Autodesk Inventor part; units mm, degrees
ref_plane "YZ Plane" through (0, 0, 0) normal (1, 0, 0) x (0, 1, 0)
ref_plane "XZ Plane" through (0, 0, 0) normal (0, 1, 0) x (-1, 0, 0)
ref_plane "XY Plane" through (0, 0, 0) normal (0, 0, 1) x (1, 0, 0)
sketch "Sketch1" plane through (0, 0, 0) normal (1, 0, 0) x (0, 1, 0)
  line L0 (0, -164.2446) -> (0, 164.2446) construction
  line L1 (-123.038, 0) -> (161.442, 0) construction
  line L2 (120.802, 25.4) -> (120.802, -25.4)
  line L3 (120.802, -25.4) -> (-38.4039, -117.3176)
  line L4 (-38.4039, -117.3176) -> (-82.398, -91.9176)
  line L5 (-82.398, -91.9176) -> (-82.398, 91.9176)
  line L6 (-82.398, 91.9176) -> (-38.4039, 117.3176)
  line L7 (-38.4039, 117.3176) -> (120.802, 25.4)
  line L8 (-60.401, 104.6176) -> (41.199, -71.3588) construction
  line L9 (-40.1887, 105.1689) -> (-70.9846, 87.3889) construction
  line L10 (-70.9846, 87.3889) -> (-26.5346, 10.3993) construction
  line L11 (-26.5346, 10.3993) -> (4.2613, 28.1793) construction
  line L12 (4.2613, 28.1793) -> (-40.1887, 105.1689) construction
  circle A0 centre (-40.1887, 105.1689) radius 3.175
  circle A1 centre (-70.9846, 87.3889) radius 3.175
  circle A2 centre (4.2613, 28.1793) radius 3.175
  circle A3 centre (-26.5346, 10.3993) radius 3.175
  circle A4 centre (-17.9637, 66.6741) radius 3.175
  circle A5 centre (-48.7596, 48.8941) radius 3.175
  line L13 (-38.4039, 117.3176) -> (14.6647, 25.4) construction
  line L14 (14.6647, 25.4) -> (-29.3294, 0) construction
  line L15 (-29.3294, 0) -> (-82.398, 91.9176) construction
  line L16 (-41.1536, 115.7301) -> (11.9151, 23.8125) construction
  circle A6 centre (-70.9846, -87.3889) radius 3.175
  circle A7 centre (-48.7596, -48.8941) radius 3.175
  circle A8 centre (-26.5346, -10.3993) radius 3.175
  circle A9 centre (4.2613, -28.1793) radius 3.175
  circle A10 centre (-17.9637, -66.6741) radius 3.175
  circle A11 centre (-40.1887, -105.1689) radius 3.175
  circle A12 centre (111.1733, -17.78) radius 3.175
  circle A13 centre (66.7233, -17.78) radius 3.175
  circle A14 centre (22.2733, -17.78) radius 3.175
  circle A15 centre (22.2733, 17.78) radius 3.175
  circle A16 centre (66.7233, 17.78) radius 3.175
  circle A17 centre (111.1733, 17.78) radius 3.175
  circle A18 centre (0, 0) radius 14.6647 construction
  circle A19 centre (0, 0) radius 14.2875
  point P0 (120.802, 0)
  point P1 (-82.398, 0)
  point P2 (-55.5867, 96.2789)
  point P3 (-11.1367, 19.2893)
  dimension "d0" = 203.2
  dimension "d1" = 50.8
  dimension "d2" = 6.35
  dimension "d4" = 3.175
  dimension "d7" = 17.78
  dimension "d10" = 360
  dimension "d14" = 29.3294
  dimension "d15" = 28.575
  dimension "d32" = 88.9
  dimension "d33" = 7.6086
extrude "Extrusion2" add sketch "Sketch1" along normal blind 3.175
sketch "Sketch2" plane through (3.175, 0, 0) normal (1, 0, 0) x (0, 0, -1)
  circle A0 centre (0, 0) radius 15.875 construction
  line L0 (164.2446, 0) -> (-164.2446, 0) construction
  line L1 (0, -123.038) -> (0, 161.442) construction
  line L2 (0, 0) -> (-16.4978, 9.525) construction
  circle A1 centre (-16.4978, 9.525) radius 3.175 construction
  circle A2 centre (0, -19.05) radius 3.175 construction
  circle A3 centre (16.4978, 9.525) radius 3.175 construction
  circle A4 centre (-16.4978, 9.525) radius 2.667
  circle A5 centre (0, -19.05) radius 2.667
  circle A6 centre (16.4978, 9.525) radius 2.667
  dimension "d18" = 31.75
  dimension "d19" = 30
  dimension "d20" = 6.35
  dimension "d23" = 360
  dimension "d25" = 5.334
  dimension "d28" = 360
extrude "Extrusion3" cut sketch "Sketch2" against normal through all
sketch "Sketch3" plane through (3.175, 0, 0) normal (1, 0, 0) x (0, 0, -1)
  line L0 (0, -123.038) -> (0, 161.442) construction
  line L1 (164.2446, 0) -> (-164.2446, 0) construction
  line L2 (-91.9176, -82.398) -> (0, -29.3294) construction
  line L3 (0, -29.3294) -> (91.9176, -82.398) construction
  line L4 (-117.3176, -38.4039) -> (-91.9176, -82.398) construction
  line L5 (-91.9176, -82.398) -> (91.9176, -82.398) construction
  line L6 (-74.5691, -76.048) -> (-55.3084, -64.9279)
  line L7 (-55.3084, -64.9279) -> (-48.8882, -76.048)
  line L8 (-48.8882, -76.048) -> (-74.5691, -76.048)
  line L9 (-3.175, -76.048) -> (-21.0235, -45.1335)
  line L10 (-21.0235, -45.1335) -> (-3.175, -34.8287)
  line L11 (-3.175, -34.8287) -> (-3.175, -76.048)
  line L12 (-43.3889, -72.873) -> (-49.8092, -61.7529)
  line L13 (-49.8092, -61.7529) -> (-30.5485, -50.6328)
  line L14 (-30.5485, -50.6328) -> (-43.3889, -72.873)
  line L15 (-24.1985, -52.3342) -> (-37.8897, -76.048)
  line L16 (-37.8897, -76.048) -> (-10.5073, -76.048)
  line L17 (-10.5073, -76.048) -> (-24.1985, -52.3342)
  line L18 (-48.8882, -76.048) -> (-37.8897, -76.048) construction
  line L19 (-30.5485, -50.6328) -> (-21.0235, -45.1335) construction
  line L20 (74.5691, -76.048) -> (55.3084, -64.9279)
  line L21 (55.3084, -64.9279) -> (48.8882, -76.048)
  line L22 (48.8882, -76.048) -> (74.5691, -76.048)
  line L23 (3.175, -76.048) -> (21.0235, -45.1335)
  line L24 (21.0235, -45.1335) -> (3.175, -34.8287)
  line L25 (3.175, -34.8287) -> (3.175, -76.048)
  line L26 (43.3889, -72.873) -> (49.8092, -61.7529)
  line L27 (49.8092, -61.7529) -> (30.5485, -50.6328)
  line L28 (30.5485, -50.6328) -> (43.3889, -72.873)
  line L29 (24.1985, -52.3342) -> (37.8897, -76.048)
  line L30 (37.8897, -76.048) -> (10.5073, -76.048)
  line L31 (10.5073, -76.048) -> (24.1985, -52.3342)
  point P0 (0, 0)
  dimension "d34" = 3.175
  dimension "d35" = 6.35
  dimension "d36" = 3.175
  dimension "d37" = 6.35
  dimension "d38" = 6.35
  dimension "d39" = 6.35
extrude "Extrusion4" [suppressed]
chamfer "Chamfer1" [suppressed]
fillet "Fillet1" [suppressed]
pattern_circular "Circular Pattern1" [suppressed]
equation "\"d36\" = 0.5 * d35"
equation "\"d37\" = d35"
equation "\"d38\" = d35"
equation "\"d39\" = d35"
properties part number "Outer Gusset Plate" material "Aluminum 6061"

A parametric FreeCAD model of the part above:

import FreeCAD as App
import Part
import Sketcher
from FreeCAD import Vector
Q = App.Units.Quantity

doc = App.newDocument("Part")
params = doc.addObject("Spreadsheet::Sheet", "Params")
for row, (alias, value) in enumerate([
    ("sketch1_diameter", "0.25 in"),
    ("sketch1_height", "2 in"),
    ("sketch1_length", "2 in"),
    ("sketch1_diameter2", "1.125 in"),
    ("pad1_length", "0.125 in"),
    ("sketch2_diameter", "0.21 in"),
], start=1):
    params.set(f"A{row}", alias)
    params.set(f"B{row}", "=" + value)
    params.setAlias(f"B{row}", alias)

body = doc.addObject("PartDesign::Body", "Body")

sketch1 = body.newObject("Sketcher::SketchObject", "Sketch")
sketch1.AttachmentSupport = (doc.getObject("YZ_Plane"), [""])
sketch1.MapMode = "FlatFace"
sketch1.addGeometry(Part.LineSegment(Vector(120.8, -25.4, 0), Vector(120.8, 25.4, 0)), False)
sketch1.addGeometry(Part.LineSegment(Vector(120.8, 25.4, 0), Vector(-38.4, 117.3, 0)), False)
sketch1.addGeometry(Part.LineSegment(Vector(-38.4, 117.3, 0), Vector(-82.4, 91.9, 0)), False)
sketch1.addGeometry(Part.LineSegment(Vector(-82.4, 91.9, 0), Vector(-82.4, -91.9, 0)), False)
sketch1.addGeometry(Part.LineSegment(Vector(-82.4, -91.9, 0), Vector(-38.4, -117.3, 0)), False)
sketch1.addGeometry(Part.LineSegment(Vector(-38.4, -117.3, 0), Vector(120.8, -25.4, 0)), False)
sketch1.addGeometry(Part.Circle(Vector(-40.2, -105.2, 0), Vector(0, 0, 1), 3.2), False)
sketch1.addGeometry(Part.Circle(Vector(-71, -87.4, 0), Vector(0, 0, 1), 3.2), False)
sketch1.addGeometry(Part.Circle(Vector(-18, -66.7, 0), Vector(0, 0, 1), 3.2), False)
sketch1.addGeometry(Part.Circle(Vector(-48.8, -48.9, 0), Vector(0, 0, 1), 3.2), False)
sketch1.addGeometry(Part.Circle(Vector(-26.5, -10.4, 0), Vector(0, 0, 1), 3.2), False)
sketch1.addGeometry(Part.Circle(Vector(4.3, -28.2, 0), Vector(0, 0, 1), 3.2), False)
sketch1.addGeometry(Part.Circle(Vector(22.3, -17.8, 0), Vector(0, 0, 1), 3.2), False)
sketch1.addGeometry(Part.Circle(Vector(66.7, -17.8, 0), Vector(0, 0, 1), 3.2), False)
sketch1.addGeometry(Part.Circle(Vector(111.2, -17.8, 0), Vector(0, 0, 1), 3.2), False)
sketch1.addGeometry(Part.Circle(Vector(-48.8, 48.9, 0), Vector(0, 0, 1), 3.2), False)
sketch1.addGeometry(Part.Circle(Vector(-26.5, 10.4, 0), Vector(0, 0, 1), 3.2), False)
sketch1.addGeometry(Part.Circle(Vector(0, 0, 0), Vector(0, 0, 1), 14.3), False)
sketch1.addGeometry(Part.Circle(Vector(4.3, 28.2, 0), Vector(0, 0, 1), 3.2), False)
sketch1.addGeometry(Part.Circle(Vector(-71, 87.4, 0), Vector(0, 0, 1), 3.2), False)
sketch1.addGeometry(Part.Circle(Vector(-40.2, 105.2, 0), Vector(0, 0, 1), 3.2), False)
sketch1.addGeometry(Part.Circle(Vector(-18, 66.7, 0), Vector(0, 0, 1), 3.2), False)
sketch1.addGeometry(Part.Circle(Vector(22.3, 17.8, 0), Vector(0, 0, 1), 3.2), False)
sketch1.addGeometry(Part.Circle(Vector(66.7, 17.8, 0), Vector(0, 0, 1), 3.2), False)
sketch1.addGeometry(Part.Circle(Vector(111.2, 17.8, 0), Vector(0, 0, 1), 3.2), False)
sketch1.addConstraint(Sketcher.Constraint("Coincident", 0, 2, 1, 1))
sketch1.addConstraint(Sketcher.Constraint("Coincident", 1, 2, 2, 1))
sketch1.addConstraint(Sketcher.Constraint("Coincident", 2, 2, 3, 1))
sketch1.addConstraint(Sketcher.Constraint("Coincident", 3, 2, 4, 1))
sketch1.addConstraint(Sketcher.Constraint("Coincident", 4, 2, 5, 1))
sketch1.addConstraint(Sketcher.Constraint("Coincident", 5, 2, 0, 1))
sketch1.addConstraint(Sketcher.Constraint("Vertical", 0))
sketch1.addConstraint(Sketcher.Constraint("Vertical", 3))
sketch1.addConstraint(Sketcher.Constraint("Coincident", 17, 3, -1, 1))
sketch1.addConstraint(Sketcher.Constraint("Equal", 6, 7))
sketch1.addConstraint(Sketcher.Constraint("Equal", 7, 8))
sketch1.addConstraint(Sketcher.Constraint("Equal", 8, 9))
sketch1.addConstraint(Sketcher.Constraint("Equal", 9, 10))
sketch1.addConstraint(Sketcher.Constraint("Equal", 10, 11))
sketch1.addConstraint(Sketcher.Constraint("Equal", 11, 12))
sketch1.addConstraint(Sketcher.Constraint("Equal", 12, 13))
sketch1.addConstraint(Sketcher.Constraint("Equal", 13, 14))
sketch1.addConstraint(Sketcher.Constraint("Equal", 14, 15))
sketch1.addConstraint(Sketcher.Constraint("Equal", 15, 16))
sketch1.addConstraint(Sketcher.Constraint("Equal", 16, 18))
sketch1.addConstraint(Sketcher.Constraint("Equal", 18, 19))
sketch1.addConstraint(Sketcher.Constraint("Equal", 19, 20))
sketch1.addConstraint(Sketcher.Constraint("Equal", 20, 21))
sketch1.addConstraint(Sketcher.Constraint("Equal", 21, 22))
sketch1.addConstraint(Sketcher.Constraint("Equal", 22, 23))
sketch1.addConstraint(Sketcher.Constraint("Equal", 23, 24))
sketch1.addConstraint(Sketcher.Constraint("Symmetric", 9, 3, 15, 3, -1))
sketch1.addConstraint(Sketcher.Constraint("Symmetric", 10, 3, 16, 3, -1))
sketch1.addConstraint(Sketcher.Constraint("Symmetric", 11, 3, 18, 3, -1))
sketch1.addConstraint(Sketcher.Constraint("Symmetric", 7, 3, 19, 3, -1))
sketch1.addConstraint(Sketcher.Constraint("Symmetric", 6, 3, 20, 3, -1))
sketch1.addConstraint(Sketcher.Constraint("Symmetric", 8, 3, 21, 3, -1))
sketch1.addConstraint(Sketcher.Constraint("Symmetric", 12, 3, 22, 3, -1))
sketch1.addConstraint(Sketcher.Constraint("Symmetric", 13, 3, 23, 3, -1))
sketch1.addConstraint(Sketcher.Constraint("Symmetric", 14, 3, 24, 3, -1))
sketch1.addConstraint(Sketcher.Constraint("Symmetric", 1, 2, 4, 2, -1))
sketch1.addConstraint(Sketcher.Constraint("Parallel", 1, 4))
sketch1.addConstraint(Sketcher.Constraint("Parallel", 2, 5))
sketch1.addConstraint(Sketcher.Constraint("Horizontal", 12, 3, 13, 3))
sketch1.addConstraint(Sketcher.Constraint("Horizontal", 13, 3, 14, 3))
sketch1.addConstraint(Sketcher.Constraint("Equal", 2, 4))
sketch1.addConstraint(Sketcher.Constraint("Diameter", 6, Q("0.25 in")))
sketch1.addConstraint(Sketcher.Constraint("DistanceY", 0, 1, 0, 2, Q("2 in")))
sketch1.addConstraint(Sketcher.Constraint("Distance", 2, Q("2 in")))
sketch1.addConstraint(Sketcher.Constraint("Diameter", 17, Q("1.125 in")))
sketch1.addConstraint(Sketcher.Constraint("DistanceY", 12, 3, -1, 1, Q("0.7 in")))
sketch1.addConstraint(Sketcher.Constraint("DistanceY", 6, 3, 7, 3, Q("0.7 in")))
sketch1.addConstraint(Sketcher.Constraint("DistanceY", 8, 3, 9, 3, Q("0.7 in")))
sketch1.addConstraint(Sketcher.Constraint("DistanceY", 11, 3, 10, 3, Q("0.7 in")))
sketch1.addConstraint(Sketcher.Constraint("DistanceX", 12, 3, 14, 3, Q("3.5 in")))
sketch1.addConstraint(Sketcher.Constraint("Angle", 1, Q("150 deg")))
sketch1.addConstraint(Sketcher.Constraint("DistanceX", 7, 3, 10, 3, Q("1.75 in")))
sketch1.addConstraint(Sketcher.Constraint("DistanceX", 6, 3, 11, 3, Q("1.75 in")))
sketch1.addConstraint(Sketcher.Constraint("DistanceX", 12, 3, 13, 3, Q("1.75 in")))
sketch1.addConstraint(Sketcher.Constraint("DistanceY", 3, 2, 3, 1, Q("7.2376 in")))
sketch1.addConstraint(Sketcher.Constraint("DistanceX", 6, 3, 8, 3, Q("0.875 in")))
sketch1.addConstraint(Sketcher.Constraint("DistanceX", 7, 3, 9, 3, Q("0.875 in")))
sketch1.addConstraint(Sketcher.Constraint("DistanceY", 6, 3, -1, 1, Q("4.1405 in")))
sketch1.addConstraint(Sketcher.Constraint("DistanceX", -1, 1, 12, 3, Q("0.8769 in")))
sketch1.addConstraint(Sketcher.Constraint("DistanceX", 19, 3, 1, 2, Q("1.2827 in")))
sketch1.addConstraint(Sketcher.Constraint("DistanceX", 6, 3, -1, 1, 40.1887))
sketch1.addConstraint(Sketcher.Constraint("DistanceX", 7, 3, -1, 1, 70.9846))
sketch1.addConstraint(Sketcher.Constraint("DistanceY", 8, 3, -1, 1, 66.674))
sketch1.addConstraint(Sketcher.Constraint("DistanceY", 10, 3, -1, 1, 10.3993))
sketch1.setExpression("Constraints[41]", "Params.sketch1_diameter")
sketch1.setExpression("Constraints[42]", "Params.sketch1_height")
sketch1.setExpression("Constraints[43]", "Params.sketch1_length")
sketch1.setExpression("Constraints[44]", "Params.sketch1_diameter2")
pad1 = body.newObject("PartDesign::Pad", "Pad")
pad1.Profile = sketch1
pad1.setExpression("Length", "Params.pad1_length")

sketch2 = body.newObject("Sketcher::SketchObject", "Sketch001")
sketch2.AttachmentSupport = (doc.getObject("YZ_Plane"), [""])
sketch2.MapMode = "FlatFace"
sketch2.AttachmentOffset = App.Placement(Vector(0, 0, 0.125 * 25.4), App.Rotation())
sketch2.addGeometry(Part.Circle(Vector(9.5, 16.5, 0), Vector(0, 0, 1), 2.7), False)
sketch2.addGeometry(Part.Circle(Vector(-19.1, 0, 0), Vector(0, 0, 1), 2.7), False)
sketch2.addGeometry(Part.Circle(Vector(9.5, -16.5, 0), Vector(0, 0, 1), 2.7), False)
sketch2.addConstraint(Sketcher.Constraint("Equal", 0, 1))
sketch2.addConstraint(Sketcher.Constraint("Equal", 1, 2))
sketch2.addConstraint(Sketcher.Constraint("Symmetric", 0, 3, 2, 3, -1))
sketch2.addConstraint(Sketcher.Constraint("PointOnObject", 1, 3, -1))
sketch2.addConstraint(Sketcher.Constraint("Diameter", 0, Q("0.21 in")))
sketch2.addConstraint(Sketcher.Constraint("DistanceX", 1, 3, -1, 1, Q("0.75 in")))
sketch2.addConstraint(Sketcher.Constraint("DistanceX", -1, 1, 0, 3, Q("0.375 in")))
sketch2.addConstraint(Sketcher.Constraint("DistanceY", -1, 1, 0, 3, 16.4978))
sketch2.setExpression("Constraints[4]", "Params.sketch2_diameter")
pocket1 = body.newObject("PartDesign::Pocket", "Pocket")
pocket1.Profile = sketch2
pocket1.Type = "ThroughAll"

doc.recompute()
